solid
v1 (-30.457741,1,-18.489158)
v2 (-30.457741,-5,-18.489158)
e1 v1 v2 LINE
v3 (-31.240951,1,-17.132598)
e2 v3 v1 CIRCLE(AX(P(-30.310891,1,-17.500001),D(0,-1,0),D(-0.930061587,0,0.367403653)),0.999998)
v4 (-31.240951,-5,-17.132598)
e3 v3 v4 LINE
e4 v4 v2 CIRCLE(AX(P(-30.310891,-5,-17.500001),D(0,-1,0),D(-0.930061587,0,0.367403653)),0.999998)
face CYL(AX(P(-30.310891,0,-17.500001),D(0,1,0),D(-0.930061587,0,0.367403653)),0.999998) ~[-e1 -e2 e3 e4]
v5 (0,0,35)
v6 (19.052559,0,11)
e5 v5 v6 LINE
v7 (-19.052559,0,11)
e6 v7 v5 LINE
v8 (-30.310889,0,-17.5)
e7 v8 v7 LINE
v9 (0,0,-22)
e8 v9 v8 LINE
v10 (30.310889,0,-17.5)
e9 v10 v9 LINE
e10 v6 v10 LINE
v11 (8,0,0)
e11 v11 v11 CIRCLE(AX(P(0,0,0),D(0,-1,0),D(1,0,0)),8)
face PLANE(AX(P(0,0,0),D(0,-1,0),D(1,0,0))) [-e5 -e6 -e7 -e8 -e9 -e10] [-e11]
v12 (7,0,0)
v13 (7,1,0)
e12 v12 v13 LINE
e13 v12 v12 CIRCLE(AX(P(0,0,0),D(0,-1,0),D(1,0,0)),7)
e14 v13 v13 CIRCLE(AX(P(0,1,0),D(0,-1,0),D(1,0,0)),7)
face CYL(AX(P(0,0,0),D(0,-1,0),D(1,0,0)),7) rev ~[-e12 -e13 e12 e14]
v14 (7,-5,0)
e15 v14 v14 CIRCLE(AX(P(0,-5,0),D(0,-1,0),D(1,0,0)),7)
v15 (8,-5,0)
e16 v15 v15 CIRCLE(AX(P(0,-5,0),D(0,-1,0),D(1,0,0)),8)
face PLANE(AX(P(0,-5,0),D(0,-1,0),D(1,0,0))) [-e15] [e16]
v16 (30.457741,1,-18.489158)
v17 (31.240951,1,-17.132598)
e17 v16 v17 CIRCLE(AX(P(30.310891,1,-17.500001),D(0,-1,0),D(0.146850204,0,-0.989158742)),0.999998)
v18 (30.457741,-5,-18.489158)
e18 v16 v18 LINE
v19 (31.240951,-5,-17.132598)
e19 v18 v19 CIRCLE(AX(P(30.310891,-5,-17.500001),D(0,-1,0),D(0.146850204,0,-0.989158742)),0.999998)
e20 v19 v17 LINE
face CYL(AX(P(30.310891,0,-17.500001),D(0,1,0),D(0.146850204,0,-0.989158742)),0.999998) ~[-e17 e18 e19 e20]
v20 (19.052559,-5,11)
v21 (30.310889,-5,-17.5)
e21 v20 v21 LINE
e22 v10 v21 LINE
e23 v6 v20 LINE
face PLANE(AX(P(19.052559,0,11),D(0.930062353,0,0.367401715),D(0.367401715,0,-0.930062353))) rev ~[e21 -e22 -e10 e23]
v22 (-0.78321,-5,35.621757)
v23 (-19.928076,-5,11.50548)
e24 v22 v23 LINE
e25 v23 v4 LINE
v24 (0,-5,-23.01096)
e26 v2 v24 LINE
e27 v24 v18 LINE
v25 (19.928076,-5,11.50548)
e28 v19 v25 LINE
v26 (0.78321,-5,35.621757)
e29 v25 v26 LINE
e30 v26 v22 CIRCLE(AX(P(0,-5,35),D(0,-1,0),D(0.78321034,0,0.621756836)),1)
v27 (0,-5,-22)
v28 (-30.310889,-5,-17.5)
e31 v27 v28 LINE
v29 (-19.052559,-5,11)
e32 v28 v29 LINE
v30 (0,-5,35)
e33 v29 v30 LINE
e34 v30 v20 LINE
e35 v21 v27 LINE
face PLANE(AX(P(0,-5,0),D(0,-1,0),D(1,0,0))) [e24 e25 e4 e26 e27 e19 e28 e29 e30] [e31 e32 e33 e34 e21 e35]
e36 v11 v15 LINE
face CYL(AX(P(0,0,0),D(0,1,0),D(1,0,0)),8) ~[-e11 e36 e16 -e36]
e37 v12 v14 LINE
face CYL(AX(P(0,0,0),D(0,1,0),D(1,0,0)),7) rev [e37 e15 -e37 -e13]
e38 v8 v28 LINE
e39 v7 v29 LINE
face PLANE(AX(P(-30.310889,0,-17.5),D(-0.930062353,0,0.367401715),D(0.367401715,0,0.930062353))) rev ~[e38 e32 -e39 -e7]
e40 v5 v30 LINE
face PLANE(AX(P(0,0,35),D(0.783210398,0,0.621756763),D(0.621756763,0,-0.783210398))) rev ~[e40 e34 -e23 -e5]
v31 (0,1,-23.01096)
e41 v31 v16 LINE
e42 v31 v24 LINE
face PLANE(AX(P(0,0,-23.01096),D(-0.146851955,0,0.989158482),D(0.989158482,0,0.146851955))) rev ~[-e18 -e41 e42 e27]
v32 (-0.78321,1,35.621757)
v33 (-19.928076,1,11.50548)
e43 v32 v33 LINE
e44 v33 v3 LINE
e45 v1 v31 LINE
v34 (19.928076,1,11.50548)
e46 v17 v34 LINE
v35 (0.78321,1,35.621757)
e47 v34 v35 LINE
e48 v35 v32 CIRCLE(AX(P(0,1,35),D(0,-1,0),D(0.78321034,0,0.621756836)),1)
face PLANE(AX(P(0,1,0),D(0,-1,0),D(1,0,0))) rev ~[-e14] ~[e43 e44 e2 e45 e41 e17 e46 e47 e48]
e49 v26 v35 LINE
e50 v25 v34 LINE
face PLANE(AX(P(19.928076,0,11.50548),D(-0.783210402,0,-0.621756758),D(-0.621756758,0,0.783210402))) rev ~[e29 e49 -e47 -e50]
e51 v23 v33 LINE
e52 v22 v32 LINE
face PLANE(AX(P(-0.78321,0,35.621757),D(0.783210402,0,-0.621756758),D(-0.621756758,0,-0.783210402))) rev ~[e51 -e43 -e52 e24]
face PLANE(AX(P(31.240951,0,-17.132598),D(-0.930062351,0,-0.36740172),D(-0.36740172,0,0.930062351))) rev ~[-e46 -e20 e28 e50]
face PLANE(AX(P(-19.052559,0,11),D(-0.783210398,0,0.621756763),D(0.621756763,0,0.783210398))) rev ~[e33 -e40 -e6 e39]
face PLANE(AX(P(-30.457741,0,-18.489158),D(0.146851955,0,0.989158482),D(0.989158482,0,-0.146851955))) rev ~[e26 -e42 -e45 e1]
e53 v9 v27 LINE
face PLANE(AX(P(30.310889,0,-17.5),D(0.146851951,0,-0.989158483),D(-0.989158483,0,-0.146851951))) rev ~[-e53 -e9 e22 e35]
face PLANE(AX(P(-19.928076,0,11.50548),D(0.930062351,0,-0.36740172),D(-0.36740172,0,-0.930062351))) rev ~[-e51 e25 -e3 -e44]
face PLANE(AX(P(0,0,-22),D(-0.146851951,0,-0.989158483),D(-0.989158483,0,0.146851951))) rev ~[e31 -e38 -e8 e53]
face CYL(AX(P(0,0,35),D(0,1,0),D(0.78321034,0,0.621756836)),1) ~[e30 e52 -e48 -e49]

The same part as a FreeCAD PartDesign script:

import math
import FreeCAD as App
import Part
import Sketcher

V = App.Vector


def add_polygon(sketch, points):
    """Adds a closed chain of lines whose ends are joined by coincident constraints."""
    first, n = sketch.GeometryCount, len(points)
    for a, b in zip(points, points[1:] + points[:1]):
        sketch.addGeometry(Part.LineSegment(App.Vector(*a, 0), App.Vector(*b, 0)), False)
    for i in range(n):
        sketch.addConstraint(Sketcher.Constraint("Coincident", first + i, 2, first + (i + 1) % n, 1))

doc = App.newDocument("Part")
params = doc.addObject("Spreadsheet::Sheet", "Params")
for row, (alias, value) in enumerate([
    ("sketch1_diameter", "14 mm"),
    ("sketch1_radius", "0.999998 mm"),
    ("pad1_length", "1 mm"),
    ("sketch2_diameter", "16 mm"),
    ("sketch2_diameter2", "14 mm"),
    ("sketch2_radius", "0.999998 mm"),
    ("pad2_length", "5 mm"),
], start=1):
    params.set(f"A{row}", alias)
    params.set(f"B{row}", "=" + value)
    params.setAlias(f"B{row}", alias)

body = doc.addObject("PartDesign::Body", "Body")

sketch1 = body.newObject("Sketcher::SketchObject", "Sketch")
sketch1.AttachmentSupport = (doc.getObject("XZ_Plane"), [""])
sketch1.MapMode = "FlatFace"
sketch1.addGeometry(Part.LineSegment(V(-19.928076, 11.50548, 0), V(-31.240951, -17.132598, 0)), False)
sketch1.addGeometry(Part.ArcOfCircle(Part.Circle(V(-30.310891, -17.500001, 0), V(0, 0, 1), 0.999998), math.radians(158.444417), math.radians(261.555565)), False)
sketch1.addGeometry(Part.LineSegment(V(-30.457741, -18.489158, 0), V(0, -23.01096, 0)), False)
sketch1.addGeometry(Part.LineSegment(V(0, -23.01096, 0), V(30.457741, -18.489158, 0)), False)
sketch1.addGeometry(Part.ArcOfCircle(Part.Circle(V(30.310891, -17.500001, 0), V(0, 0, 1), 0.999998), math.radians(-81.555565), math.radians(21.555583)), False)
sketch1.addGeometry(Part.LineSegment(V(31.240951, -17.132598, 0), V(19.928076, 11.50548, 0)), False)
sketch1.addGeometry(Part.LineSegment(V(19.928076, 11.50548, 0), V(0.78321, 35.621757, 0)), False)
sketch1.addGeometry(Part.ArcOfCircle(Part.Circle(V(0, 35, 0), V(0, 0, 1), 1), math.radians(38.444542), math.radians(141.555458)), False)
sketch1.addGeometry(Part.LineSegment(V(-0.78321, 35.621757, 0), V(-19.928076, 11.50548, 0)), False)
sketch1.addGeometry(Part.Circle(V(0, 0, 0), V(0, 0, 1), 7), False)
sketch1.addConstraint(Sketcher.Constraint("Coincident", 0, 2, 1, 1))
sketch1.addConstraint(Sketcher.Constraint("Tangent", 1, 2, 2, 1))
sketch1.addConstraint(Sketcher.Constraint("Coincident", 2, 2, 3, 1))
sketch1.addConstraint(Sketcher.Constraint("Tangent", 3, 2, 4, 1))
sketch1.addConstraint(Sketcher.Constraint("Coincident", 4, 2, 5, 1))
sketch1.addConstraint(Sketcher.Constraint("Coincident", 5, 2, 6, 1))
sketch1.addConstraint(Sketcher.Constraint("Tangent", 6, 2, 7, 1))
sketch1.addConstraint(Sketcher.Constraint("Tangent", 7, 2, 8, 1))
sketch1.addConstraint(Sketcher.Constraint("Coincident", 8, 2, 0, 1))
sketch1.addConstraint(Sketcher.Constraint("Coincident", 9, 3, -1, 1))
sketch1.addConstraint(Sketcher.Constraint("Equal", 1, 4))
sketch1.addConstraint(Sketcher.Constraint("Equal", 4, 7))
sketch1.addConstraint(Sketcher.Constraint("Symmetric", 1, 3, 4, 3, -2))
sketch1.addConstraint(Sketcher.Constraint("Symmetric", 6, 2, 7, 2, -2))
sketch1.addConstraint(Sketcher.Constraint("PointOnObject", 2, 2, -2))
sketch1.addConstraint(Sketcher.Constraint("Horizontal", 0, 2, 4, 2))
sketch1.addConstraint(Sketcher.Constraint("Horizontal", 5, 2, 8, 2))
sketch1.addConstraint(Sketcher.Constraint("Equal", 0, 2))
sketch1.addConstraint(Sketcher.Constraint("Equal", 5, 6))
sketch1.addConstraint(Sketcher.Constraint("Diameter", 9, 14.0))
sketch1.addConstraint(Sketcher.Constraint("Radius", 1, 0.999998))
sketch1.addConstraint(Sketcher.Constraint("DistanceY", -1, 1, 7, 3, 35.0))
sketch1.addConstraint(Sketcher.Constraint("DistanceY", 1, 3, -1, 1, 17.500001))
sketch1.addConstraint(Sketcher.Constraint("DistanceY", 0, 2, -1, 1, 17.132598))
sketch1.addConstraint(Sketcher.Constraint("Distance", 2, 30.791568))
sketch1.addConstraint(Sketcher.Constraint("DistanceX", 1, 3, -1, 1, 30.310891))
sketch1.setExpression("Constraints[19]", "Params.sketch1_diameter")
sketch1.setExpression("Constraints[20]", "Params.sketch1_radius")
pad1 = body.newObject("PartDesign::Pad", "Pad")
pad1.Profile = sketch1
pad1.setExpression("Length", "Params.pad1_length")
pad1.Reversed = True

sketch2 = body.newObject("Sketcher::SketchObject", "Sketch001")
sketch2.AttachmentSupport = (doc.getObject("XZ_Plane"), [""])
sketch2.MapMode = "FlatFace"
sketch2.addGeometry(Part.LineSegment(V(-19.928076, 11.50548, 0), V(-31.240951, -17.132598, 0)), False)
sketch2.addGeometry(Part.ArcOfCircle(Part.Circle(V(-30.310891, -17.500001, 0), V(0, 0, 1), 0.999998), math.radians(158.444417), math.radians(261.555565)), False)
sketch2.addGeometry(Part.LineSegment(V(-30.457741, -18.489158, 0), V(0, -23.01096, 0)), False)
sketch2.addGeometry(Part.LineSegment(V(0, -23.01096, 0), V(30.457741, -18.489158, 0)), False)
sketch2.addGeometry(Part.ArcOfCircle(Part.Circle(V(30.310891, -17.500001, 0), V(0, 0, 1), 0.999998), math.radians(-81.555565), math.radians(21.555583)), False)
sketch2.addGeometry(Part.LineSegment(V(31.240951, -17.132598, 0), V(19.928076, 11.50548, 0)), False)
sketch2.addGeometry(Part.LineSegment(V(19.928076, 11.50548, 0), V(0.78321, 35.621757, 0)), False)
sketch2.addGeometry(Part.ArcOfCircle(Part.Circle(V(0, 35, 0), V(0, 0, 1), 1), math.radians(38.444542), math.radians(141.555458)), False)
sketch2.addGeometry(Part.LineSegment(V(-0.78321, 35.621757, 0), V(-19.928076, 11.50548, 0)), False)
add_polygon(sketch2, [(30.310889, -17.5), (0, -22), (-30.310889, -17.5), (-19.052559, 11), (0, 35), (19.052559, 11)])
sketch2.addGeometry(Part.Circle(V(0, 0, 0), V(0, 0, 1), 8), False)
sketch2.addGeometry(Part.Circle(V(0, 0, 0), V(0, 0, 1), 7), False)
sketch2.addConstraint(Sketcher.Constraint("Coincident", 0, 2, 1, 1))
sketch2.addConstraint(Sketcher.Constraint("Tangent", 1, 2, 2, 1))
sketch2.addConstraint(Sketcher.Constraint("Coincident", 2, 2, 3, 1))
sketch2.addConstraint(Sketcher.Constraint("Tangent", 3, 2, 4, 1))
sketch2.addConstraint(Sketcher.Constraint("Coincident", 4, 2, 5, 1))
sketch2.addConstraint(Sketcher.Constraint("Coincident", 5, 2, 6, 1))
sketch2.addConstraint(Sketcher.Constraint("Tangent", 6, 2, 7, 1))
sketch2.addConstraint(Sketcher.Constraint("Tangent", 7, 2, 8, 1))
sketch2.addConstraint(Sketcher.Constraint("Coincident", 8, 2, 0, 1))
sketch2.addConstraint(Sketcher.Constraint("Coincident", 15, 3, -1, 1))
sketch2.addConstraint(Sketcher.Constraint("Coincident", 16, 3, -1, 1))
sketch2.addConstraint(Sketcher.Constraint("Coincident", 10, 2, 1, 3))
sketch2.addConstraint(Sketcher.Constraint("Coincident", 12, 2, 7, 3))
sketch2.addConstraint(Sketcher.Constraint("Coincident", 14, 2, 4, 3))
sketch2.addConstraint(Sketcher.Constraint("Equal", 1, 4))
sketch2.addConstraint(Sketcher.Constraint("Equal", 4, 7))
sketch2.addConstraint(Sketcher.Constraint("Symmetric", 1, 3, 4, 3, -2))
sketch2.addConstraint(Sketcher.Constraint("Symmetric", 6, 2, 7, 2, -2))
sketch2.addConstraint(Sketcher.Constraint("Symmetric", 11, 2, 13, 2, -2))
sketch2.addConstraint(Sketcher.Constraint("PointOnObject", 2, 2, -2))
sketch2.addConstraint(Sketcher.Constraint("PointOnObject", 9, 2, -2))
sketch2.addConstraint(Sketcher.Constraint("Parallel", 3, 9))
sketch2.addConstraint(Sketcher.Constraint("Parallel", 0, 11))
sketch2.addConstraint(Sketcher.Constraint("Parallel", 8, 12))
sketch2.addConstraint(Sketcher.Constraint("Parallel", 5, 14))
sketch2.addConstraint(Sketcher.Constraint("Horizontal", 0, 2, 4, 2))
sketch2.addConstraint(Sketcher.Constraint("Equal", 0, 2))
sketch2.addConstraint(Sketcher.Constraint("Equal", 5, 6))
sketch2.addConstraint(Sketcher.Constraint("Equal", 10, 11))
sketch2.addConstraint(Sketcher.Constraint("Equal", 11, 12))
sketch2.addConstraint(Sketcher.Constraint("Diameter", 15, 16.0))
sketch2.addConstraint(Sketcher.Constraint("Diameter", 16, 14.0))
sketch2.addConstraint(Sketcher.Constraint("Radius", 1, 0.999998))
sketch2.addConstraint(Sketcher.Constraint("DistanceY", -1, 1, 7, 3, 35.0))
sketch2.addConstraint(Sketcher.Constraint("DistanceY", 9, 2, -1, 1, 22.0))
sketch2.addConstraint(Sketcher.Constraint("DistanceY", -1, 1, 11, 2, 11.0))
sketch2.setExpression("Constraints[36]", "Params.sketch2_diameter")
sketch2.setExpression("Constraints[37]", "Params.sketch2_diameter2")
sketch2.setExpression("Constraints[38]", "Params.sketch2_radius")
pad2 = body.newObject("PartDesign::Pad", "Pad001")
pad2.Profile = sketch2
pad2.setExpression("Length", "Params.pad2_length")

doc.recompute()
